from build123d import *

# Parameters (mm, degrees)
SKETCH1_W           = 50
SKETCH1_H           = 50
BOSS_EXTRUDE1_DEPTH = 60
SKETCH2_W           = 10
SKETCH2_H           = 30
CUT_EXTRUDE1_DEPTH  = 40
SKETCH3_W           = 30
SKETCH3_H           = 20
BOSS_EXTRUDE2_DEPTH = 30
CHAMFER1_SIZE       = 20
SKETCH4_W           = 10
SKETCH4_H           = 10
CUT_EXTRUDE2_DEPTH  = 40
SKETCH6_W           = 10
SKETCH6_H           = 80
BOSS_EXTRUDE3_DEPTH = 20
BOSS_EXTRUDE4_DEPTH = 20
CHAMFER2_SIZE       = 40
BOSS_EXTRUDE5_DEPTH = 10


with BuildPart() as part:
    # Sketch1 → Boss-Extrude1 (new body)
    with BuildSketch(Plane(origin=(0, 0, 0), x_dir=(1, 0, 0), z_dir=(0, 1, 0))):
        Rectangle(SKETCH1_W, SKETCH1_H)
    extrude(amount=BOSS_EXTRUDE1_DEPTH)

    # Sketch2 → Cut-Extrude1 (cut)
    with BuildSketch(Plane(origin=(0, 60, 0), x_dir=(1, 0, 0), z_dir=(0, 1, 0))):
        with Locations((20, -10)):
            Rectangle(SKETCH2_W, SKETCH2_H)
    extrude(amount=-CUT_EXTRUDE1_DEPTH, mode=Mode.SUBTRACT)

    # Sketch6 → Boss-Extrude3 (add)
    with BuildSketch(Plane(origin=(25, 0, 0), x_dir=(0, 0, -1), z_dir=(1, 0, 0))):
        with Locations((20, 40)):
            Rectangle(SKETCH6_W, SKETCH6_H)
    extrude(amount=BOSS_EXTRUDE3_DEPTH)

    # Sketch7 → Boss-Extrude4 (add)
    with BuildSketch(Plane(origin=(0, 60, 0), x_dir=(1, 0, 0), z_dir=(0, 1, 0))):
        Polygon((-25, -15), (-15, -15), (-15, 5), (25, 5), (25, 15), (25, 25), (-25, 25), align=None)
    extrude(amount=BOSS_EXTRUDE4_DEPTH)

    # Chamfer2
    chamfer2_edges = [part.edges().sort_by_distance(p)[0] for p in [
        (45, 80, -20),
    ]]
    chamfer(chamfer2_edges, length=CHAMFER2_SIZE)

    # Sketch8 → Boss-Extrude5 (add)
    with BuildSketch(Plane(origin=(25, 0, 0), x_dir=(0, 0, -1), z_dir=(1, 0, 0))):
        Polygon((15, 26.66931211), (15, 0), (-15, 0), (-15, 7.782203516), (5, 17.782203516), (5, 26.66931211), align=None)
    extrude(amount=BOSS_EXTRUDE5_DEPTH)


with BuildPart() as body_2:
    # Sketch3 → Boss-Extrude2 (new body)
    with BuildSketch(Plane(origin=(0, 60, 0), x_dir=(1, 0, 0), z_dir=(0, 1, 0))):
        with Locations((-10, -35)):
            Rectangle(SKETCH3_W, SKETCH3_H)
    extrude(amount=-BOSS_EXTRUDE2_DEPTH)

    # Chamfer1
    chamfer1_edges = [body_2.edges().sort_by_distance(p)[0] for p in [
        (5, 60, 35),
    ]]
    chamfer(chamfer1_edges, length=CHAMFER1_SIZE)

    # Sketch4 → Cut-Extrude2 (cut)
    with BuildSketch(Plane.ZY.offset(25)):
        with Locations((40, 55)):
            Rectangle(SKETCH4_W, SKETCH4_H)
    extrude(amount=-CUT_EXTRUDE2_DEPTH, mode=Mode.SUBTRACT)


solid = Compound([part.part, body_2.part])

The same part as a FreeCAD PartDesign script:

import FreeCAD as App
import Part
import Sketcher
from FreeCAD import Vector
Q = App.Units.Quantity


def edges_at(feature, points):
    """Names of the edges that pass closest to the given points."""
    edges = feature.Shape.Edges
    near = lambda p: min(range(len(edges)), key=lambda i: edges[i].distToShape(Part.Vertex(*p))[0])
    return sorted({f"Edge{near(p) + 1}" for p in points})

doc = App.newDocument("Part")
body = doc.addObject("PartDesign::Body", "Body")

# Sketch on XZ plane
sketch1 = body.newObject("Sketcher::SketchObject", "Sketch")
sketch1.AttachmentSupport = (doc.getObject("XZ_Plane"), [""])
sketch1.MapMode = "FlatFace"
sketch1.addGeometry([
    Part.LineSegment(Vector(-25, -25, 0), Vector(-25, 25, 0)),
    Part.LineSegment(Vector(-25, 25, 0), Vector(25, 25, 0)),
    Part.LineSegment(Vector(25, 25, 0), Vector(25, -25, 0)),
    Part.LineSegment(Vector(25, -25, 0), Vector(-25, -25, 0)),
], False)
sketch1.addConstraint([
    Sketcher.Constraint("Coincident", 0, 2, 1, 1),
    Sketcher.Constraint("Coincident", 1, 2, 2, 1),
    Sketcher.Constraint("Coincident", 2, 2, 3, 1),
    Sketcher.Constraint("Coincident", 3, 2, 0, 1),
    Sketcher.Constraint("Vertical", 0),
    Sketcher.Constraint("Horizontal", 1),
    Sketcher.Constraint("Vertical", 2),
    Sketcher.Constraint("Horizontal", 3),
    Sketcher.Constraint("Symmetric", 0, 2, 2, 2, -1, 1),
    Sketcher.Constraint("Equal", 3, 0),
    Sketcher.Constraint("DistanceX", 1, 1, 1, 2, Q("50 mm")),
])
pad1 = body.newObject("PartDesign::Pad", "Pad")
pad1.Profile = sketch1
pad1.Length = 60
pad1.Reversed = True

# Sketch on XZ plane
sketch2 = body.newObject("Sketcher::SketchObject", "Sketch001")
sketch2.AttachmentSupport = (doc.getObject("XZ_Plane"), [""])
sketch2.MapMode = "FlatFace"
sketch2.AttachmentOffset = App.Placement(Vector(0, 0, -60), App.Rotation())
sketch2.addGeometry([
    Part.LineSegment(Vector(15, -5, 0), Vector(15, 25, 0)),
    Part.LineSegment(Vector(15, 25, 0), Vector(25, 25, 0)),
    Part.LineSegment(Vector(25, 25, 0), Vector(25, -5, 0)),
    Part.LineSegment(Vector(25, -5, 0), Vector(15, -5, 0)),
], False)
sketch2.addConstraint([
    Sketcher.Constraint("Coincident", 0, 2, 1, 1),
    Sketcher.Constraint("Coincident", 1, 2, 2, 1),
    Sketcher.Constraint("Coincident", 2, 2, 3, 1),
    Sketcher.Constraint("Coincident", 3, 2, 0, 1),
    Sketcher.Constraint("Vertical", 0),
    Sketcher.Constraint("Horizontal", 1),
    Sketcher.Constraint("Vertical", 2),
    Sketcher.Constraint("Horizontal", 3),
    Sketcher.Constraint("DistanceX", 1, 1, 1, 2, Q("10 mm")),
    Sketcher.Constraint("DistanceY", 0, 1, 0, 2, Q("30 mm")),
    Sketcher.Constraint("DistanceX", -1, 1, 0, 2, Q("15 mm")),
    Sketcher.Constraint("DistanceY", -1, 1, 0, 2, Q("25 mm")),
])
pocket1 = body.newObject("PartDesign::Pocket", "Pocket")
pocket1.Profile = sketch2
pocket1.Length = 40
pocket1.Reversed = True

# Sketch on YZ plane
sketch3 = body.newObject("Sketcher::SketchObject", "Sketch002")
sketch3.AttachmentSupport = (doc.getObject("YZ_Plane"), [""])
sketch3.MapMode = "FlatFace"
sketch3.AttachmentOffset = App.Placement(Vector(0, 0, 25), App.Rotation())
sketch3.addGeometry([
    Part.LineSegment(Vector(80, -15, 0), Vector(0, -15, 0)),
    Part.LineSegment(Vector(0, -15, 0), Vector(0, -25, 0)),
    Part.LineSegment(Vector(0, -25, 0), Vector(80, -25, 0)),
    Part.LineSegment(Vector(80, -25, 0), Vector(80, -15, 0)),
], False)
sketch3.addConstraint([
    Sketcher.Constraint("Coincident", 0, 2, 1, 1),
    Sketcher.Constraint("Coincident", 1, 2, 2, 1),
    Sketcher.Constraint("Coincident", 2, 2, 3, 1),
    Sketcher.Constraint("Coincident", 3, 2, 0, 1),
    Sketcher.Constraint("Horizontal", 0),
    Sketcher.Constraint("Vertical", 1),
    Sketcher.Constraint("Horizontal", 2),
    Sketcher.Constraint("Vertical", 3),
    Sketcher.Constraint("PointOnObject", 0, 2, -2),
    Sketcher.Constraint("DistanceX", 0, 2, 0, 1, Q("80 mm")),
    Sketcher.Constraint("DistanceY", 1, 2, 1, 1, Q("10 mm")),
    Sketcher.Constraint("DistanceY", 0, 2, -1, 1, Q("15 mm")),
])
pad2 = body.newObject("PartDesign::Pad", "Pad001")
pad2.Profile = sketch3
pad2.Length = 20

# Sketch on XZ plane
sketch4 = body.newObject("Sketcher::SketchObject", "Sketch003")
sketch4.AttachmentSupport = (doc.getObject("XZ_Plane"), [""])
sketch4.MapMode = "FlatFace"
sketch4.AttachmentOffset = App.Placement(Vector(0, 0, -60), App.Rotation())
sketch4.addGeometry([
    Part.LineSegment(Vector(-25, 15, 0), Vector(-15, 15, 0)),  # 0
    Part.LineSegment(Vector(-15, 15, 0), Vector(-15, -5, 0)),  # 1
    Part.LineSegment(Vector(-15, -5, 0), Vector(25, -5, 0)),  # 2
    Part.LineSegment(Vector(25, -5, 0), Vector(25, -25, 0)),  # 3
    Part.LineSegment(Vector(25, -25, 0), Vector(-25, -25, 0)),  # 4
    Part.LineSegment(Vector(-25, -25, 0), Vector(-25, 15, 0)),  # 5
], False)
sketch4.addConstraint([
    Sketcher.Constraint("Coincident", 0, 2, 1, 1),
    Sketcher.Constraint("Coincident", 1, 2, 2, 1),
    Sketcher.Constraint("Coincident", 2, 2, 3, 1),
    Sketcher.Constraint("Coincident", 3, 2, 4, 1),
    Sketcher.Constraint("Coincident", 4, 2, 5, 1),
    Sketcher.Constraint("Coincident", 5, 2, 0, 1),
    Sketcher.Constraint("Horizontal", 0),
    Sketcher.Constraint("Vertical", 1),
    Sketcher.Constraint("Horizontal", 2),
    Sketcher.Constraint("Vertical", 3),
    Sketcher.Constraint("Horizontal", 4),
    Sketcher.Constraint("Vertical", 5),
    Sketcher.Constraint("Equal", 1, 3),
    Sketcher.Constraint("Equal", 2, 5),
    Sketcher.Constraint("DistanceX", 0, 1, 0, 2, Q("10 mm")),
    Sketcher.Constraint("DistanceX", 2, 1, 2, 2, Q("40 mm")),
    Sketcher.Constraint("DistanceX", 0, 2, -1, 1, Q("15 mm")),
    Sketcher.Constraint("DistanceY", -1, 1, 0, 2, Q("15 mm")),
])
pad3 = body.newObject("PartDesign::Pad", "Pad002")
pad3.Profile = sketch4
pad3.Length = 20
pad3.Reversed = True
doc.recompute()

chamfer = body.newObject("PartDesign::Chamfer", "Chamfer")
chamfer.Base = (pad3, edges_at(pad3, [(45, 80, -20)]))
chamfer.Size = 40

# Sketch on YZ plane
sketch5 = body.newObject("Sketcher::SketchObject", "Sketch004")
sketch5.AttachmentSupport = (doc.getObject("YZ_Plane"), [""])
sketch5.MapMode = "FlatFace"
sketch5.AttachmentOffset = App.Placement(Vector(0, 0, 25), App.Rotation())
sketch5.addGeometry([
    Part.LineSegment(Vector(0, -15, 0), Vector(27, -15, 0)),  # 0
    Part.LineSegment(Vector(27, -15, 0), Vector(27, -5, 0)),  # 1
    Part.LineSegment(Vector(27, -5, 0), Vector(18, -5, 0)),  # 2
    Part.LineSegment(Vector(18, -5, 0), Vector(8, 15, 0)),  # 3
    Part.LineSegment(Vector(8, 15, 0), Vector(0, 15, 0)),  # 4
    Part.LineSegment(Vector(0, 15, 0), Vector(0, -15, 0)),  # 5
], False)
sketch5.addConstraint([
    Sketcher.Constraint("Coincident", 0, 2, 1, 1),
    Sketcher.Constraint("Coincident", 1, 2, 2, 1),
    Sketcher.Constraint("Coincident", 2, 2, 3, 1),
    Sketcher.Constraint("Coincident", 3, 2, 4, 1),
    Sketcher.Constraint("Coincident", 4, 2, 5, 1),
    Sketcher.Constraint("Coincident", 5, 2, 0, 1),
    Sketcher.Constraint("Horizontal", 0),
    Sketcher.Constraint("Vertical", 1),
    Sketcher.Constraint("Horizontal", 2),
    Sketcher.Constraint("Horizontal", 4),
    Sketcher.Constraint("Vertical", 5),
    Sketcher.Constraint("Symmetric", 4, 2, 5, 2, -1, 1),
    Sketcher.Constraint("DistanceY", 1, 1, 1, 2, Q("10 mm")),
    Sketcher.Constraint("DistanceY", 5, 2, 5, 1, Q("30 mm")),
    Sketcher.Constraint("DistanceX", 3, 2, 2, 2, Q("10 mm")),
    Sketcher.Constraint("DistanceX", 2, 2, 2, 1, Q("8.887109 mm")),
    Sketcher.Constraint("DistanceX", 0, 1, 0, 2, Q("26.669312 mm")),
])
pad4 = body.newObject("PartDesign::Pad", "Pad003")
pad4.Profile = sketch5
pad4.Length = 10
body2 = doc.addObject("PartDesign::Body", "Body001")

# Sketch on XZ plane
sketch6 = body2.newObject("Sketcher::SketchObject", "Sketch005")
sketch6.AttachmentSupport = (doc.getObject("XZ_Plane001"), [""])
sketch6.MapMode = "FlatFace"
sketch6.AttachmentOffset = App.Placement(Vector(0, 0, -60), App.Rotation())
sketch6.addGeometry([
    Part.LineSegment(Vector(-25, 25, 0), Vector(-25, 45, 0)),
    Part.LineSegment(Vector(-25, 45, 0), Vector(5, 45, 0)),
    Part.LineSegment(Vector(5, 45, 0), Vector(5, 25, 0)),
    Part.LineSegment(Vector(5, 25, 0), Vector(-25, 25, 0)),
], False)
sketch6.addConstraint([
    Sketcher.Constraint("Coincident", 0, 2, 1, 1),
    Sketcher.Constraint("Coincident", 1, 2, 2, 1),
    Sketcher.Constraint("Coincident", 2, 2, 3, 1),
    Sketcher.Constraint("Coincident", 3, 2, 0, 1),
    Sketcher.Constraint("Vertical", 0),
    Sketcher.Constraint("Horizontal", 1),
    Sketcher.Constraint("Vertical", 2),
    Sketcher.Constraint("Horizontal", 3),
    Sketcher.Constraint("DistanceX", 1, 1, 1, 2, Q("30 mm")),
    Sketcher.Constraint("DistanceY", 0, 1, 0, 2, Q("20 mm")),
    Sketcher.Constraint("DistanceX", 0, 2, -1, 1, Q("25 mm")),
    Sketcher.Constraint("DistanceY", -1, 1, 0, 2, Q("45 mm")),
])
pad5 = body2.newObject("PartDesign::Pad", "Pad004")
pad5.Profile = sketch6
pad5.Length = 30
doc.recompute()

chamfer2 = body2.newObject("PartDesign::Chamfer", "Chamfer001")
chamfer2.Base = (pad5, edges_at(pad5, [(5, 60, 35)]))
chamfer2.Size = 20

# Sketch on YZ plane
sketch7 = body2.newObject("Sketcher::SketchObject", "Sketch006")
sketch7.AttachmentSupport = (doc.getObject("YZ_Plane001"), [""])
sketch7.MapMode = "FlatFace"
sketch7.AttachmentOffset = App.Placement(Vector(0, 0, -25), App.Rotation())
sketch7.addGeometry([
    Part.LineSegment(Vector(60, 35, 0), Vector(50, 35, 0)),
    Part.LineSegment(Vector(50, 35, 0), Vector(50, 45, 0)),
    Part.LineSegment(Vector(50, 45, 0), Vector(60, 45, 0)),
    Part.LineSegment(Vector(60, 45, 0), Vector(60, 35, 0)),
], False)
sketch7.addConstraint([
    Sketcher.Constraint("Coincident", 0, 2, 1, 1),
    Sketcher.Constraint("Coincident", 1, 2, 2, 1),
    Sketcher.Constraint("Coincident", 2, 2, 3, 1),
    Sketcher.Constraint("Coincident", 3, 2, 0, 1),
    Sketcher.Constraint("Horizontal", 0),
    Sketcher.Constraint("Vertical", 1),
    Sketcher.Constraint("Horizontal", 2),
    Sketcher.Constraint("Vertical", 3),
    Sketcher.Constraint("Equal", 2, 1),
    Sketcher.Constraint("DistanceX", 0, 2, 0, 1, Q("10 mm")),
    Sketcher.Constraint("DistanceX", -1, 1, 0, 2, Q("50 mm")),
    Sketcher.Constraint("DistanceY", -1, 1, 0, 2, Q("35 mm")),
])
pocket2 = body2.newObject("PartDesign::Pocket", "Pocket001")
pocket2.Profile = sketch7
pocket2.Length = 40
pocket2.Reversed = True

doc.recompute()
